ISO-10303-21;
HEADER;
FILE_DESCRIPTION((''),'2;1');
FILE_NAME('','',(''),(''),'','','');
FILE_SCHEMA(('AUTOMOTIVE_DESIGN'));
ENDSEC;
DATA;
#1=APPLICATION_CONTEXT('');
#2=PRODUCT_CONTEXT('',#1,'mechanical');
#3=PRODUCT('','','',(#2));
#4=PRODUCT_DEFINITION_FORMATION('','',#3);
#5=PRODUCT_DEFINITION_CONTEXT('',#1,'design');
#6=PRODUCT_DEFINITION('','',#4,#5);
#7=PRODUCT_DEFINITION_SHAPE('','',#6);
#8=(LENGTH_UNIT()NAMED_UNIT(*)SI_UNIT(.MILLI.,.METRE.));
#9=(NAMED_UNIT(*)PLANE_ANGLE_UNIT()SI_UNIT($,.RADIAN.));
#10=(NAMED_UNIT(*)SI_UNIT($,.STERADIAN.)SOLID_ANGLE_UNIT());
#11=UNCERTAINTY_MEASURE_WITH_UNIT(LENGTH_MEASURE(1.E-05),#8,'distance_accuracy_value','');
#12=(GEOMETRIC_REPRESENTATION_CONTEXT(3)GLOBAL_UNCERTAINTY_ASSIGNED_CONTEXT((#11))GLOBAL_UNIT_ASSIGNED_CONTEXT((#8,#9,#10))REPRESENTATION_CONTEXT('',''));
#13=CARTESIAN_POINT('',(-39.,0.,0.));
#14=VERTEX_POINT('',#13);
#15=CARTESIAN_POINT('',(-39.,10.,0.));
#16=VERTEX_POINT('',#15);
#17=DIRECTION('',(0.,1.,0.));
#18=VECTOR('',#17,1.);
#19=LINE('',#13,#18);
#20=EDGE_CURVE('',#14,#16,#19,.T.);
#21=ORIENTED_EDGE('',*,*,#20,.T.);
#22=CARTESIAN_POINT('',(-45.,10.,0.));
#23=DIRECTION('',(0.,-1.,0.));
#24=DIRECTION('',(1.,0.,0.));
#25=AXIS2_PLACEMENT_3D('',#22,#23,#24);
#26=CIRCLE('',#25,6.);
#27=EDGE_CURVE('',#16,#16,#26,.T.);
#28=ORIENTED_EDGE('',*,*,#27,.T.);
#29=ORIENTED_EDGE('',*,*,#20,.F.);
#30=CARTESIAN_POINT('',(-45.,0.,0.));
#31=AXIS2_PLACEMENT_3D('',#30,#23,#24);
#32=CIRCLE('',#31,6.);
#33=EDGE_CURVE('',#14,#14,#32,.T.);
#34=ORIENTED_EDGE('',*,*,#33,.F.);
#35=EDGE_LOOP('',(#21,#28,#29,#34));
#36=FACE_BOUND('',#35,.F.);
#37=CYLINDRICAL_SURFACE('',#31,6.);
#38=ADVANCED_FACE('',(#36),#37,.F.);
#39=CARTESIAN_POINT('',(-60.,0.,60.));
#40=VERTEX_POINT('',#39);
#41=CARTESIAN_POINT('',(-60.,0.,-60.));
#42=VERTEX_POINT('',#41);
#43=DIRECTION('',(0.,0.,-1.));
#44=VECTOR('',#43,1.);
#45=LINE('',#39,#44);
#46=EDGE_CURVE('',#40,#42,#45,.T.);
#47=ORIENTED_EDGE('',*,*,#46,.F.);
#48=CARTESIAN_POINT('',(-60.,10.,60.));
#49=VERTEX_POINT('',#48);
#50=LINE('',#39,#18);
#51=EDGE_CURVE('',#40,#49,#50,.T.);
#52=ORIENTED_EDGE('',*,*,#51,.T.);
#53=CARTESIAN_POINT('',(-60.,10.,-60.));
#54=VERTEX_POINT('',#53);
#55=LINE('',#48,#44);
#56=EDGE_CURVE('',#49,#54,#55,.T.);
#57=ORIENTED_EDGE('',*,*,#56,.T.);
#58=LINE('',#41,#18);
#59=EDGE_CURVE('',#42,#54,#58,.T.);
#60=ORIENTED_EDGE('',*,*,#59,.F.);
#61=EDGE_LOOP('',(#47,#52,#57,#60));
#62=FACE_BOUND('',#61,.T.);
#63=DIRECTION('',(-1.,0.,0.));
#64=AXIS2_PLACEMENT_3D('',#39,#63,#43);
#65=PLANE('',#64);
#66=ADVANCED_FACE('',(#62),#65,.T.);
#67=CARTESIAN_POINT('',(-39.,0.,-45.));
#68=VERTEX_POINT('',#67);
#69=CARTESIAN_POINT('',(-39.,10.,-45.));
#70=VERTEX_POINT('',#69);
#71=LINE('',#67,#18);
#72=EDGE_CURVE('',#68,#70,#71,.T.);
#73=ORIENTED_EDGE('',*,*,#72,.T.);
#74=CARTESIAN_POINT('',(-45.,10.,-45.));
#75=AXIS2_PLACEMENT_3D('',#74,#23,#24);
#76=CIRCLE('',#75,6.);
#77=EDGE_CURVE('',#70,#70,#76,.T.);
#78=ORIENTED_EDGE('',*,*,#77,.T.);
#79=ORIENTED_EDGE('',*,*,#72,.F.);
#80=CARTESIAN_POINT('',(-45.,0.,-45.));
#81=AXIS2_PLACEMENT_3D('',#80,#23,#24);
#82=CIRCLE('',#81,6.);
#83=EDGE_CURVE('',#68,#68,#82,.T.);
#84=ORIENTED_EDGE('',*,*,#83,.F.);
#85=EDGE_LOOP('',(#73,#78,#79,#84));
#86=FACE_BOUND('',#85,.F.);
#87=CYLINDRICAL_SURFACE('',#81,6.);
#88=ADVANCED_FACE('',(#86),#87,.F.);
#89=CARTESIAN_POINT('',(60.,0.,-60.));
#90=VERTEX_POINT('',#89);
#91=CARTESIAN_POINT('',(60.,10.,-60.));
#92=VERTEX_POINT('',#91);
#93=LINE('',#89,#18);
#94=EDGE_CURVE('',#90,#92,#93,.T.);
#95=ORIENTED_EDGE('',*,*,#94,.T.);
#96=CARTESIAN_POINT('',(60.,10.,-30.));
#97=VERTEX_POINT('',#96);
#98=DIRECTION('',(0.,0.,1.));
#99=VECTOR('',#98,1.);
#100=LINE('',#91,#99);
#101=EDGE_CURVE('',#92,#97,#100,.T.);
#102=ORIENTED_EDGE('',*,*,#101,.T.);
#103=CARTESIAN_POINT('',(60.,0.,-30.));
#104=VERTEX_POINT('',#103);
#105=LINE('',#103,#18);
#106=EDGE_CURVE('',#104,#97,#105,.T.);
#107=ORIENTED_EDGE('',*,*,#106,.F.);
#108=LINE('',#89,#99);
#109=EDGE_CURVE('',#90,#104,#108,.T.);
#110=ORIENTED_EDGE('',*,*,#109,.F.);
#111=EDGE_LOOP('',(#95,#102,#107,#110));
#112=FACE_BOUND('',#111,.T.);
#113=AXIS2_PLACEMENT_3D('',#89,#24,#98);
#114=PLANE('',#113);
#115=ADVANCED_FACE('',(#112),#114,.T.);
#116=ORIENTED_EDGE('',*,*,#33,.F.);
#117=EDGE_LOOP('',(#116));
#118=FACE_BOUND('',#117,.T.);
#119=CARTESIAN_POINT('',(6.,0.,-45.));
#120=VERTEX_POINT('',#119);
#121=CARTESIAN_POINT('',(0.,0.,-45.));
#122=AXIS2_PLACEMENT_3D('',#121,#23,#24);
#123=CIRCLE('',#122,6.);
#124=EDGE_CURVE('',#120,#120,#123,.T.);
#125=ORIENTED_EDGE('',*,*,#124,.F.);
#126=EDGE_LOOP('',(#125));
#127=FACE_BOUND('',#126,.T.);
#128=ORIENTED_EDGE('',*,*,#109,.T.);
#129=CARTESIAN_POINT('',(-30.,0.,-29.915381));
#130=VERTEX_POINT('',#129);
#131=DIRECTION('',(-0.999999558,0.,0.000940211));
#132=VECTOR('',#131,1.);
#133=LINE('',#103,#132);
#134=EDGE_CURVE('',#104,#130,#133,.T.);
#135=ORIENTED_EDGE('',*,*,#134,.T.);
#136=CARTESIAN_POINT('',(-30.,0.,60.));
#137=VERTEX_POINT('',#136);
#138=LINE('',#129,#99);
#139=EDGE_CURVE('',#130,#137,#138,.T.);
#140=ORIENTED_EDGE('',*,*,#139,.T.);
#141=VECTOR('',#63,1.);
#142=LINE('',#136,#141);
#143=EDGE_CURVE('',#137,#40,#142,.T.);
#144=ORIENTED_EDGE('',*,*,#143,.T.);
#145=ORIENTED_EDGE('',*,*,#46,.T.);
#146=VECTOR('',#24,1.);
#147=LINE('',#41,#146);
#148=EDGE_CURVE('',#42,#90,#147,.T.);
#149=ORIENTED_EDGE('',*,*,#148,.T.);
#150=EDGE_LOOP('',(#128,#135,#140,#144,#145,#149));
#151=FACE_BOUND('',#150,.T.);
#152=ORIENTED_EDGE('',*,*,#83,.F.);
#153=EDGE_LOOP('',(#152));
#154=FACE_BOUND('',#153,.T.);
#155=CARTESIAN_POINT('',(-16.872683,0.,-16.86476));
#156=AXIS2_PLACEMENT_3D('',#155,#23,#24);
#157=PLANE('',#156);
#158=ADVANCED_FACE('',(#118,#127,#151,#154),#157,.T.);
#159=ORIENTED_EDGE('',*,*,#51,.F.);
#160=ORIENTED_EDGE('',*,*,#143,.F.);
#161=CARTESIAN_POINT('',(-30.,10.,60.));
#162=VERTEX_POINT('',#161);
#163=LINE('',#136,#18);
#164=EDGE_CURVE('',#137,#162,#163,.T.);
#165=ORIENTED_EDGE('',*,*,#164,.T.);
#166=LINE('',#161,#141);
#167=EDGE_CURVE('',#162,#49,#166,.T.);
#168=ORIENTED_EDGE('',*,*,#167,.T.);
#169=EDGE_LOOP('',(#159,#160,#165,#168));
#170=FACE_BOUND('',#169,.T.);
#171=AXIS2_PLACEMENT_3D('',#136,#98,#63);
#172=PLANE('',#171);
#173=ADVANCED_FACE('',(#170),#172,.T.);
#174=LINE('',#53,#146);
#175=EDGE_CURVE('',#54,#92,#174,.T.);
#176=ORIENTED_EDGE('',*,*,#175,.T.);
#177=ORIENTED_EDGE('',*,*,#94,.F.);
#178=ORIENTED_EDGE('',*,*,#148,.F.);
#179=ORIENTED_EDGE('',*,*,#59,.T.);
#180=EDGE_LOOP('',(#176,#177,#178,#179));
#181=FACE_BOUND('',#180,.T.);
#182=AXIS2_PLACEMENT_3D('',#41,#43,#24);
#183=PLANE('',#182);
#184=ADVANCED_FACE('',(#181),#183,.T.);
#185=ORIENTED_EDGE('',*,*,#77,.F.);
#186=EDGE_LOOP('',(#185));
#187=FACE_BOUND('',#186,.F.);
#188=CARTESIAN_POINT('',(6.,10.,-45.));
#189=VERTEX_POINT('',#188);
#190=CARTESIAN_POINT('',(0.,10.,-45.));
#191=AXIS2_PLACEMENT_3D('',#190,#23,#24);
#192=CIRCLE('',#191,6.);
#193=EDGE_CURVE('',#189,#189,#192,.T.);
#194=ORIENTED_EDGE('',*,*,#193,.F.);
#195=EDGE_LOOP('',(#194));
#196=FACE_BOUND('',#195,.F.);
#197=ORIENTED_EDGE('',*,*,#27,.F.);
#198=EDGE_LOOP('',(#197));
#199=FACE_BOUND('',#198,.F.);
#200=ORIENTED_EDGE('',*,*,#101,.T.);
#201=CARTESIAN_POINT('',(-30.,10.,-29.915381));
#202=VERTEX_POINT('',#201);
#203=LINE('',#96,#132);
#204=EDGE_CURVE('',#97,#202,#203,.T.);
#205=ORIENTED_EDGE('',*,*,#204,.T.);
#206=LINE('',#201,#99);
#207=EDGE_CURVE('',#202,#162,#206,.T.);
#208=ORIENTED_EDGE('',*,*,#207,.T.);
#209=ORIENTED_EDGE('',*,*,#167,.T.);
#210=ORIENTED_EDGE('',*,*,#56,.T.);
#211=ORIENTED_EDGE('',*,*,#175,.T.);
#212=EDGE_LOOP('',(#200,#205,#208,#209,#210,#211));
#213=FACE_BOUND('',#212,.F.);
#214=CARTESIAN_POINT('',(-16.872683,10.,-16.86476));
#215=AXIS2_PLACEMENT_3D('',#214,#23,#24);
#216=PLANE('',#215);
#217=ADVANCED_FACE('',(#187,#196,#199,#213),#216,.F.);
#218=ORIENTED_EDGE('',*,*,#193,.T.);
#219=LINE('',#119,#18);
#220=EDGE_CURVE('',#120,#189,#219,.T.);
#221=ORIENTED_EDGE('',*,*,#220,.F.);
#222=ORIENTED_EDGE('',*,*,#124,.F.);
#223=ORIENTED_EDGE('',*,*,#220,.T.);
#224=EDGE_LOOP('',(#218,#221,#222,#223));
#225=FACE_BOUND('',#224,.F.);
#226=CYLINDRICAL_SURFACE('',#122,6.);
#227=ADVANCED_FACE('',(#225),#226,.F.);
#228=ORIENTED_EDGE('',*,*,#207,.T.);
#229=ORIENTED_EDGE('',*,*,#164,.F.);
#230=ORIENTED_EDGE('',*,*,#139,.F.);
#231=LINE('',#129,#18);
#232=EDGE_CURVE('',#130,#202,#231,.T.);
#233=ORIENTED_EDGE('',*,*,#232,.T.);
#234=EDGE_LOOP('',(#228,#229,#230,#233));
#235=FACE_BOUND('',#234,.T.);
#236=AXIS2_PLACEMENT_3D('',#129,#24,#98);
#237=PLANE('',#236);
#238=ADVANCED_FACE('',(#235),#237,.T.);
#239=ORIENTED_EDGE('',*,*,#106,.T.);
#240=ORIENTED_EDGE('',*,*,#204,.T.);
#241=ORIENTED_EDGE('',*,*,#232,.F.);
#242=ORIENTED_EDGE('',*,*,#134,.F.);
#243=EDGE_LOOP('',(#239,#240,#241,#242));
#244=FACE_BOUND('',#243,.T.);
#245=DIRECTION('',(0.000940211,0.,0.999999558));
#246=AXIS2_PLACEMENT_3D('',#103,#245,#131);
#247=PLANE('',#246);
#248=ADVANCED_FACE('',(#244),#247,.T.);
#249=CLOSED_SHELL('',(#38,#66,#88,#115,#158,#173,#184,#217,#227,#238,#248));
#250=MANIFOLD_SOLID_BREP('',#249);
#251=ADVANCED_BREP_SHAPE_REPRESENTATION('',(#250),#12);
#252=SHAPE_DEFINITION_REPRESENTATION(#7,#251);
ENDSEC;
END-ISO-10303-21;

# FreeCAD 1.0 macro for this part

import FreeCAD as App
import Part
import Sketcher

V = App.Vector


def add_polygon(sketch, points):
    """Adds a closed chain of lines whose ends are joined by coincident constraints."""
    first, n = sketch.GeometryCount, len(points)
    for a, b in zip(points, points[1:] + points[:1]):
        sketch.addGeometry(Part.LineSegment(App.Vector(*a, 0), App.Vector(*b, 0)), False)
    for i in range(n):
        sketch.addConstraint(Sketcher.Constraint("Coincident", first + i, 2, first + (i + 1) % n, 1))

doc = App.newDocument("Part")
params = doc.addObject("Spreadsheet::Sheet", "Params")
for row, (alias, value) in enumerate([
    ("sketch1_diameter", "12 mm"),
    ("sketch1_width", "30 mm"),
    ("sketch1_width2", "120 mm"),
    ("pad1_length", "10 mm"),
], start=1):
    params.set(f"A{row}", alias)
    params.set(f"B{row}", "=" + value)
    params.setAlias(f"B{row}", alias)

body = doc.addObject("PartDesign::Body", "Body")

# Sketch on XZ plane
sketch1 = body.newObject("Sketcher::SketchObject", "Sketch")
sketch1.AttachmentSupport = (doc.getObject("XZ_Plane"), [""])
sketch1.MapMode = "FlatFace"
add_polygon(sketch1, [(-30, -29.915381), (-30, 60), (-60, 60), (-60, -60), (60, -60), (60, -30)])  # lines 0-5
sketch1.addGeometry(Part.Circle(V(-45, -45, 0), V(0, 0, 1), 6), False)  # 6
sketch1.addGeometry(Part.Circle(V(0, -45, 0), V(0, 0, 1), 6), False)  # 7
sketch1.addGeometry(Part.Circle(V(-45, 0, 0), V(0, 0, 1), 6), False)  # 8
sketch1.addConstraint([
    Sketcher.Constraint("Vertical", 0),
    Sketcher.Constraint("Horizontal", 1),
    Sketcher.Constraint("Vertical", 2),
    Sketcher.Constraint("Horizontal", 3),
    Sketcher.Constraint("Vertical", 4),
    Sketcher.Constraint("Equal", 6, 7),
    Sketcher.Constraint("Equal", 7, 8),
    Sketcher.Constraint("Symmetric", 1, 2, 3, 2, -1, 1),
    Sketcher.Constraint("PointOnObject", 7, 3, -2),
    Sketcher.Constraint("PointOnObject", 8, 3, -1),
    Sketcher.Constraint("Horizontal", 6, 3, 7, 3),
    Sketcher.Constraint("Vertical", 6, 3, 8, 3),
    Sketcher.Constraint("Equal", 3, 2),
    Sketcher.Constraint("Equal", 1, 4),
    Sketcher.Constraint("Diameter", 6, 12.0),
    Sketcher.Constraint("DistanceX", 1, 2, 1, 1, 30.0),
    Sketcher.Constraint("DistanceX", 3, 1, 3, 2, 120.0),
    Sketcher.Constraint("DistanceX", 6, 3, -1, 1, 45.0),
    Sketcher.Constraint("DistanceY", 6, 3, -1, 1, 45.0),
    Sketcher.Constraint("DistanceY", 0, 1, 0, 2, 89.915381),
])
sketch1.setExpression("Constraints[20]", "Params.sketch1_diameter")
sketch1.setExpression("Constraints[21]", "Params.sketch1_width")
sketch1.setExpression("Constraints[22]", "Params.sketch1_width2")
pad1 = body.newObject("PartDesign::Pad", "Pad")
pad1.Profile = sketch1
pad1.setExpression("Length", "Params.pad1_length")
pad1.Reversed = True

doc.recompute()
